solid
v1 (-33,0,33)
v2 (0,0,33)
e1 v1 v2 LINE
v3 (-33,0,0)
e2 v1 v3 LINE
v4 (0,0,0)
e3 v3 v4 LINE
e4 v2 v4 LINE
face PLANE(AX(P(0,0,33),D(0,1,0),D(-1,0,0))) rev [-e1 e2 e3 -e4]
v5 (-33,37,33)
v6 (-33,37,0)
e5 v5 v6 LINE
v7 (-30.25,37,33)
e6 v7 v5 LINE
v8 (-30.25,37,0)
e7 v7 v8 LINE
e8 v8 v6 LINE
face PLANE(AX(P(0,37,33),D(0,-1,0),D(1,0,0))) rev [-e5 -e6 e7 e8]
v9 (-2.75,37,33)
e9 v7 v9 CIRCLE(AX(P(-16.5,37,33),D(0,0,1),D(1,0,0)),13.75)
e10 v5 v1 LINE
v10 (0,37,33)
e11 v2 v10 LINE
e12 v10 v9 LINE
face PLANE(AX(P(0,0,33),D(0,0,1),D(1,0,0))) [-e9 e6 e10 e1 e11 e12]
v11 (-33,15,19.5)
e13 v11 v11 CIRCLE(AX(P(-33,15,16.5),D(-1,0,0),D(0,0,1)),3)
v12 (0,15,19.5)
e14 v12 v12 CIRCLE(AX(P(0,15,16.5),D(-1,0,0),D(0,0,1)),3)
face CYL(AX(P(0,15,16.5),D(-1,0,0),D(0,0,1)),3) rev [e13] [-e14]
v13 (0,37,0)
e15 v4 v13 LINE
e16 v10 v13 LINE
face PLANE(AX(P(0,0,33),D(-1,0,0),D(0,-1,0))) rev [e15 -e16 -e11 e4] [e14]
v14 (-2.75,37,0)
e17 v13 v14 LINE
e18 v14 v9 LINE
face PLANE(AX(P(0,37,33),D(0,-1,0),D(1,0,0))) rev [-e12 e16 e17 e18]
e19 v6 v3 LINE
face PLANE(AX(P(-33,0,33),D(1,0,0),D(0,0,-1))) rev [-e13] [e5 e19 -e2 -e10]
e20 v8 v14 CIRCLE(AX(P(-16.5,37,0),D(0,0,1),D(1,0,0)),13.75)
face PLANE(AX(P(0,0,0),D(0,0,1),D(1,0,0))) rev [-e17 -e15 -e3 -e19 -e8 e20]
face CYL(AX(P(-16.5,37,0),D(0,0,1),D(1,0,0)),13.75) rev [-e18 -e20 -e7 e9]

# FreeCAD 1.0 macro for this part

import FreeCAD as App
import Part
import Sketcher
Q = App.Units.Quantity

doc = App.newDocument("Part")
params = doc.addObject("Spreadsheet::Sheet", "Params")
for row, (alias, value) in enumerate([
    ("sketch1_width", "33 mm"),
    ("sketch1_height", "37 mm"),
    ("pad1_length", "33 mm"),
    ("sketch2_diameter", "27.5 mm"),
    ("pocket1_length", "33 mm"),
    ("sketch3_diameter", "6 mm"),
    ("pocket2_length", "33 mm"),
], start=1):
    params.set(f"A{row}", alias)
    params.set(f"B{row}", "=" + value)
    params.setAlias(f"B{row}", alias)

body = doc.addObject("PartDesign::Body", "Body")

sketch1 = doc.addObject("Sketcher::SketchObject", "Sketch")
body.addObject(sketch1)
sketch1.AttachmentSupport = (doc.XY_Plane, [""])
sketch1.MapMode = "FlatFace"
sketch1.addGeometry([
    Part.LineSegment(App.Vector(-33, 37, 0), App.Vector(-33, 0, 0)),
    Part.LineSegment(App.Vector(-33, 0, 0), App.Vector(0, 0, 0)),
    Part.LineSegment(App.Vector(0, 0, 0), App.Vector(0, 37, 0)),
    Part.LineSegment(App.Vector(0, 37, 0), App.Vector(-33, 37, 0)),
], False)
sketch1.addConstraint([
    Sketcher.Constraint("Coincident", 0, 2, 1, 1),
    Sketcher.Constraint("Coincident", 1, 2, 2, 1),
    Sketcher.Constraint("Coincident", 2, 2, 3, 1),
    Sketcher.Constraint("Coincident", 3, 2, 0, 1),
    Sketcher.Constraint("Vertical", 0),
    Sketcher.Constraint("Horizontal", 1),
    Sketcher.Constraint("Vertical", 2),
    Sketcher.Constraint("Horizontal", 3),
    Sketcher.Constraint("Coincident", 1, 2, -1, 1),
    Sketcher.Constraint("DistanceX", 1, 1, 1, 2, Q("33 mm")),
    Sketcher.Constraint("DistanceY", 0, 2, 0, 1, Q("37 mm")),
])
sketch1.setExpression("Constraints[9]", "Params.sketch1_width")
sketch1.setExpression("Constraints[10]", "Params.sketch1_height")
pad1 = doc.addObject("PartDesign::Pad", "Pad")
body.addObject(pad1)
pad1.Profile = sketch1
pad1.setExpression("Length", "Params.pad1_length")

sketch2 = doc.addObject("Sketcher::SketchObject", "Sketch001")
body.addObject(sketch2)
sketch2.AttachmentSupport = (doc.XY_Plane, [""])
sketch2.MapMode = "FlatFace"
sketch2.AttachmentOffset = App.Placement(App.Vector(0, 0, 33), App.Rotation())
sketch2.addGeometry(Part.Circle(App.Vector(-16, 37, 0), App.Vector(0, 0, 1), 14), False)
sketch2.addConstraint([
    Sketcher.Constraint("Diameter", 0, Q("27.5 mm")),
    Sketcher.Constraint("DistanceY", -1, 1, 0, 3, Q("37 mm")),
    Sketcher.Constraint("DistanceX", 0, 3, -1, 1, Q("16.5 mm")),
])
sketch2.setExpression("Constraints[0]", "Params.sketch2_diameter")
pocket1 = doc.addObject("PartDesign::Pocket", "Pocket")
body.addObject(pocket1)
pocket1.Profile = sketch2
pocket1.setExpression("Length", "Params.pocket1_length")

sketch3 = doc.addObject("Sketcher::SketchObject", "Sketch002")
body.addObject(sketch3)
sketch3.AttachmentSupport = (doc.YZ_Plane, [""])
sketch3.MapMode = "FlatFace"
sketch3.AttachmentOffset = App.Placement(App.Vector(0, 0, -33), App.Rotation())
sketch3.addGeometry(Part.Circle(App.Vector(15, 16.5, 0), App.Vector(0, 0, 1), 3), False)
sketch3.addConstraint([
    Sketcher.Constraint("Diameter", 0, Q("6 mm")),
    Sketcher.Constraint("DistanceX", -1, 1, 0, 3, Q("15 mm")),
    Sketcher.Constraint("DistanceY", -1, 1, 0, 3, Q("16.5 mm")),
])
sketch3.setExpression("Constraints[0]", "Params.sketch3_diameter")
pocket2 = doc.addObject("PartDesign::Pocket", "Pocket001")
body.addObject(pocket2)
pocket2.Profile = sketch3
pocket2.setExpression("Length", "Params.pocket2_length")
pocket2.Reversed = True

doc.recompute()
